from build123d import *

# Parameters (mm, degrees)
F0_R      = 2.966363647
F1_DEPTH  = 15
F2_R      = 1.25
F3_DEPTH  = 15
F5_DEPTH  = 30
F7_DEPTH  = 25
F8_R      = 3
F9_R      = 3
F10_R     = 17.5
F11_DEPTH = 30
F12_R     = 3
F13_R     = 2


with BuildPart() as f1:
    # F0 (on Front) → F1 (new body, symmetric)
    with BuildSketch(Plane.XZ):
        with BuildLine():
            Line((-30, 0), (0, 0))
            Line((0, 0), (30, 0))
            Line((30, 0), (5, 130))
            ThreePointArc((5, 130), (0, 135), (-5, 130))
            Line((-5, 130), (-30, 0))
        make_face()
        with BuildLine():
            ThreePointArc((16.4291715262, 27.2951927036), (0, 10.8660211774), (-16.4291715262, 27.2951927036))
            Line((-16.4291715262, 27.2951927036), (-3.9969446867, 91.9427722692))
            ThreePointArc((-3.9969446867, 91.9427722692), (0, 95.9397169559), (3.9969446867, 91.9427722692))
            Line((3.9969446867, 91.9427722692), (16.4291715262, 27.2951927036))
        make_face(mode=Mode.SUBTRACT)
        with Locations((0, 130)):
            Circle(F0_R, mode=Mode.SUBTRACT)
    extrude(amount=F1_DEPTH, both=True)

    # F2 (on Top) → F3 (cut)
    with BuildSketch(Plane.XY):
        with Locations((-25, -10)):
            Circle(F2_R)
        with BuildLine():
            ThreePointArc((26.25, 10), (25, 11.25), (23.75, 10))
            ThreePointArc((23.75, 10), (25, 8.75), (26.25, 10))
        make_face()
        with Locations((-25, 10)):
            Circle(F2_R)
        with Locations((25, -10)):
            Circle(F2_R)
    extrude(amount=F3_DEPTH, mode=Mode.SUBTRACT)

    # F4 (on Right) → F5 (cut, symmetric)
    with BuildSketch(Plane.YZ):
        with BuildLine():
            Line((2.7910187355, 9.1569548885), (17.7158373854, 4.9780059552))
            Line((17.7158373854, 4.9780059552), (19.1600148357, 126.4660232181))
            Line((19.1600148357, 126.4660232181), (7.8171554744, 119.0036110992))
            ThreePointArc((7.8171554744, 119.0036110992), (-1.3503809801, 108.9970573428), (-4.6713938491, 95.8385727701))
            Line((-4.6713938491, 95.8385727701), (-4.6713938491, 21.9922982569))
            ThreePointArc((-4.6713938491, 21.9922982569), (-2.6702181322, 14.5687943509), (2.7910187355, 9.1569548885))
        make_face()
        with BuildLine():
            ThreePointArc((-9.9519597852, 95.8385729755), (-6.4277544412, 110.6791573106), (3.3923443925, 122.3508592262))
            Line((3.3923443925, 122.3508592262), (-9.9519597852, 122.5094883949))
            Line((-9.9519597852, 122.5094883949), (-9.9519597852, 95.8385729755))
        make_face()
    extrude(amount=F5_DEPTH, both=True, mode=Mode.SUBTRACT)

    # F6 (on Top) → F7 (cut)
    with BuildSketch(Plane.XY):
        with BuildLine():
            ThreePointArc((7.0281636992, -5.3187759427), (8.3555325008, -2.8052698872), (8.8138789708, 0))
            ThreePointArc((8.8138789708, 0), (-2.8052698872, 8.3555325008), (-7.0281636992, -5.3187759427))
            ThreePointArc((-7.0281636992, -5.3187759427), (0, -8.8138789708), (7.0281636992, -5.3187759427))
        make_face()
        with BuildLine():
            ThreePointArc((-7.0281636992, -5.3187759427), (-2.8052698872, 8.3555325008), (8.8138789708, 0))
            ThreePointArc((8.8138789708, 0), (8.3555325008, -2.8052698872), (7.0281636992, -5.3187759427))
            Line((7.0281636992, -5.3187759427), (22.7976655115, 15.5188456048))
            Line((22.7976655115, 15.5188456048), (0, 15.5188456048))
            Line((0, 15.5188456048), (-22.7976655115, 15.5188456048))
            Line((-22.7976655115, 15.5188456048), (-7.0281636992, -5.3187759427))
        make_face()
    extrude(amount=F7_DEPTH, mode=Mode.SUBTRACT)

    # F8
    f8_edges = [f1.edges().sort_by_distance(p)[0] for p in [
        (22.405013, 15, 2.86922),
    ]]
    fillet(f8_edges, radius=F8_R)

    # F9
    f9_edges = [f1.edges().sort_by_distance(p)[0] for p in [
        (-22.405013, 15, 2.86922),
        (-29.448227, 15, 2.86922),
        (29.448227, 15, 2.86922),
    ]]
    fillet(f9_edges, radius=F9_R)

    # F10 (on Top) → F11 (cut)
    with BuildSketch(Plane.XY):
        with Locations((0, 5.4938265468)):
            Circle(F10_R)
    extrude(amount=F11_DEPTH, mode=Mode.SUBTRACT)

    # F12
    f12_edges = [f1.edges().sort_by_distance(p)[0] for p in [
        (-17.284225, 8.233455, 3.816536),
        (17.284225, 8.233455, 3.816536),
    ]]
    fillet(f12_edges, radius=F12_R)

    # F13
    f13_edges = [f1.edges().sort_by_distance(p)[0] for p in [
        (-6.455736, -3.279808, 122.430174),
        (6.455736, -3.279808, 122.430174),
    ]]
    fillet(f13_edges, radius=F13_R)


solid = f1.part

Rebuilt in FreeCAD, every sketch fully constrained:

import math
import FreeCAD as App
import Part
import Sketcher


def edges_at(feature, points):
    """Names of the edges that pass closest to the given points."""
    edges = feature.Shape.Edges
    near = lambda p: min(range(len(edges)), key=lambda i: edges[i].distToShape(Part.Vertex(*p))[0])
    return sorted({f"Edge{near(p) + 1}" for p in points})

doc = App.newDocument("Part")
body = doc.addObject("PartDesign::Body", "Body")

# Sketch on XZ plane
sketch1 = body.newObject("Sketcher::SketchObject", "Sketch")
sketch1.AttachmentSupport = (doc.getObject("XZ_Plane"), [""])
sketch1.MapMode = "FlatFace"
sketch1.addGeometry(Part.LineSegment(App.Vector(-30, 0, 0), App.Vector(30, 0, 0)), False)
sketch1.addGeometry(Part.LineSegment(App.Vector(30, 0, 0), App.Vector(5, 130, 0)), False)
sketch1.addGeometry(Part.ArcOfCircle(Part.Circle(App.Vector(0, 130, 0), App.Vector(0, 0, 1), 5), math.radians(0), math.radians(180)), False)
sketch1.addGeometry(Part.LineSegment(App.Vector(-5, 130, 0), App.Vector(-30, 0, 0)), False)
sketch1.addGeometry(Part.LineSegment(App.Vector(3.996945, 91.942772, 0), App.Vector(16.429172, 27.295193, 0)), False)
sketch1.addGeometry(Part.ArcOfCircle(Part.Circle(App.Vector(0, 27.295193, 0), App.Vector(0, 0, 1), 16.429172), math.radians(180), math.radians(360)), False)
sketch1.addGeometry(Part.LineSegment(App.Vector(-16.429172, 27.295193, 0), App.Vector(-3.996945, 91.942772, 0)), False)
sketch1.addGeometry(Part.ArcOfCircle(Part.Circle(App.Vector(0, 91.942772, 0), App.Vector(0, 0, 1), 3.996945), math.radians(0), math.radians(180)), False)
sketch1.addGeometry(Part.Circle(App.Vector(0, 130, 0), App.Vector(0, 0, 1), 2.966364), False)
sketch1.addConstraint(Sketcher.Constraint("Coincident", 0, 2, 1, 1))
sketch1.addConstraint(Sketcher.Constraint("Coincident", 1, 2, 2, 1))
sketch1.addConstraint(Sketcher.Constraint("Coincident", 2, 2, 3, 1))
sketch1.addConstraint(Sketcher.Constraint("Coincident", 3, 2, 0, 1))
sketch1.addConstraint(Sketcher.Constraint("Coincident", 4, 2, 5, 2))
sketch1.addConstraint(Sketcher.Constraint("Coincident", 5, 1, 6, 1))
sketch1.addConstraint(Sketcher.Constraint("Coincident", 6, 2, 7, 2))
sketch1.addConstraint(Sketcher.Constraint("Coincident", 7, 1, 4, 1))
sketch1.addConstraint(Sketcher.Constraint("Horizontal", 0))
sketch1.addConstraint(Sketcher.Constraint("Coincident", 8, 3, 2, 3))
sketch1.addConstraint(Sketcher.Constraint("Symmetric", 0, 2, 3, 2, -1, 1))
sketch1.addConstraint(Sketcher.Constraint("Symmetric", 1, 2, 2, 2, -2))
sketch1.addConstraint(Sketcher.Constraint("Symmetric", 4, 2, 5, 1, -2))
sketch1.addConstraint(Sketcher.Constraint("Symmetric", 6, 2, 7, 1, -2))
sketch1.addConstraint(Sketcher.Constraint("Parallel", 1, 4))
sketch1.addConstraint(Sketcher.Constraint("Horizontal", 8, 3, 1, 2))
sketch1.addConstraint(Sketcher.Constraint("Horizontal", 5, 3, 4, 2))
sketch1.addConstraint(Sketcher.Constraint("Horizontal", 7, 3, 6, 2))
sketch1.addConstraint(Sketcher.Constraint("Radius", 2, 5.0))
sketch1.addConstraint(Sketcher.Constraint("DistanceX", 0, 1, 0, 2, 60.0))
sketch1.addConstraint(Sketcher.Constraint("DistanceY", -1, 1, 2, 3, 130.0))
sketch1.addConstraint(Sketcher.Constraint("Radius", 5, 16.429172))
sketch1.addConstraint(Sketcher.Constraint("Diameter", 8, 5.932727))
sketch1.addConstraint(Sketcher.Constraint("Radius", 7, 3.996945))
sketch1.addConstraint(Sketcher.Constraint("DistanceY", -1, 1, 5, 3, 27.295193))
pad1 = body.newObject("PartDesign::Pad", "Pad")
pad1.Profile = sketch1
pad1.Length = 30
pad1.Midplane = True

# Sketch on XY plane
sketch2 = body.newObject("Sketcher::SketchObject", "Sketch001")
sketch2.AttachmentSupport = (doc.getObject("XY_Plane"), [""])
sketch2.MapMode = "FlatFace"
sketch2.addGeometry(Part.Circle(App.Vector(-25, -10, 0), App.Vector(0, 0, 1), 1.25), False)
sketch2.addGeometry(Part.Circle(App.Vector(25, 10, 0), App.Vector(0, 0, 1), 1.25), False)
sketch2.addGeometry(Part.Circle(App.Vector(-25, 10, 0), App.Vector(0, 0, 1), 1.25), False)
sketch2.addGeometry(Part.Circle(App.Vector(25, -10, 0), App.Vector(0, 0, 1), 1.25), False)
sketch2.addConstraint(Sketcher.Constraint("Equal", 0, 1))
sketch2.addConstraint(Sketcher.Constraint("Equal", 1, 2))
sketch2.addConstraint(Sketcher.Constraint("Equal", 2, 3))
sketch2.addConstraint(Sketcher.Constraint("Symmetric", 0, 3, 1, 3, -1, 1))
sketch2.addConstraint(Sketcher.Constraint("Symmetric", 2, 3, 3, 3, -1, 1))
sketch2.addConstraint(Sketcher.Constraint("Symmetric", 1, 3, 2, 3, -2))
sketch2.addConstraint(Sketcher.Constraint("Diameter", 0, 2.5))
sketch2.addConstraint(Sketcher.Constraint("DistanceX", 0, 3, -1, 1, 25.0))
sketch2.addConstraint(Sketcher.Constraint("DistanceY", 0, 3, -1, 1, 10.0))
pocket1 = body.newObject("PartDesign::Pocket", "Pocket")
pocket1.Profile = sketch2
pocket1.Length = 15
pocket1.Reversed = True

# Sketch on YZ plane
sketch3 = body.newObject("Sketcher::SketchObject", "Sketch002")
sketch3.AttachmentSupport = (doc.getObject("YZ_Plane"), [""])
sketch3.MapMode = "FlatFace"
sketch3.addGeometry(Part.LineSegment(App.Vector(2.791019, 9.156955, 0), App.Vector(17.715837, 4.978006, 0)), False)
sketch3.addGeometry(Part.LineSegment(App.Vector(17.715837, 4.978006, 0), App.Vector(19.160015, 126.466023, 0)), False)
sketch3.addGeometry(Part.LineSegment(App.Vector(19.160015, 126.466023, 0), App.Vector(7.817155, 119.003611, 0)), False)
sketch3.addGeometry(Part.ArcOfCircle(Part.Circle(App.Vector(23.057322, 95.838573, 0), App.Vector(0, 0, 1), 27.728716), math.radians(123.340724), math.radians(180)), False)
sketch3.addGeometry(Part.LineSegment(App.Vector(-4.671394, 95.838573, 0), App.Vector(-4.671394, 21.992298, 0)), False)
sketch3.addGeometry(Part.ArcOfCircle(Part.Circle(App.Vector(10.098202, 21.992298, 0), App.Vector(0, 0, 1), 14.769596), math.radians(180), math.radians(240.347064)), False)
sketch3.addGeometry(Part.ArcOfCircle(Part.Circle(App.Vector(23.057322, 95.838573, 0), App.Vector(0, 0, 1), 33.009282), math.radians(126.565463), math.radians(180)), False)
sketch3.addGeometry(Part.LineSegment(App.Vector(3.392344, 122.350859, 0), App.Vector(-9.95196, 122.509488, 0)), False)
sketch3.addGeometry(Part.LineSegment(App.Vector(-9.95196, 122.509488, 0), App.Vector(-9.95196, 95.838573, 0)), False)
sketch3.addConstraint(Sketcher.Constraint("Coincident", 0, 2, 1, 1))
sketch3.addConstraint(Sketcher.Constraint("Coincident", 1, 2, 2, 1))
sketch3.addConstraint(Sketcher.Constraint("Tangent", 2, 2, 3, 1))
sketch3.addConstraint(Sketcher.Constraint("Tangent", 3, 2, 4, 1))
sketch3.addConstraint(Sketcher.Constraint("Tangent", 4, 2, 5, 1))
sketch3.addConstraint(Sketcher.Constraint("Coincident", 5, 2, 0, 1))
sketch3.addConstraint(Sketcher.Constraint("Coincident", 6, 1, 7, 1))
sketch3.addConstraint(Sketcher.Constraint("Coincident", 7, 2, 8, 1))
sketch3.addConstraint(Sketcher.Constraint("Tangent", 8, 2, 6, 2))
sketch3.addConstraint(Sketcher.Constraint("Vertical", 4))
sketch3.addConstraint(Sketcher.Constraint("Vertical", 8))
sketch3.addConstraint(Sketcher.Constraint("Coincident", 6, 3, 3, 3))
sketch3.addConstraint(Sketcher.Constraint("Perpendicular", 1, 7))
sketch3.addConstraint(Sketcher.Constraint("Radius", 6, 33.009282))
sketch3.addConstraint(Sketcher.Constraint("Radius", 3, 27.728716))
sketch3.addConstraint(Sketcher.Constraint("Radius", 5, 14.769596))
sketch3.addConstraint(Sketcher.Constraint("Distance", 1, 121.496601))
sketch3.addConstraint(Sketcher.Constraint("DistanceY", -1, 1, 5, 3, 21.992298))
sketch3.addConstraint(Sketcher.Constraint("DistanceY", 4, 2, 4, 1, 73.846275))
sketch3.addConstraint(Sketcher.Constraint("DistanceY", 8, 2, 8, 1, 26.670915))
sketch3.addConstraint(Sketcher.Constraint("DistanceX", -1, 1, 3, 3, 23.057322))
sketch3.addConstraint(Sketcher.Constraint("DistanceY", -1, 1, 2, 2, 119.003611))
sketch3.addConstraint(Sketcher.Constraint("DistanceX", -1, 1, 5, 2, 2.791019))
sketch3.addConstraint(Sketcher.Constraint("DistanceY", -1, 1, 6, 1, 122.350859))
sketch3.addConstraint(Sketcher.Constraint("DistanceY", 3, 3, 1, 2, 30.62745))
pocket2 = body.newObject("PartDesign::Pocket", "Pocket001")
pocket2.Profile = sketch3
pocket2.Length = 60
pocket2.Midplane = True

# Sketch on XY plane
sketch4 = body.newObject("Sketcher::SketchObject", "Sketch003")
sketch4.AttachmentSupport = (doc.getObject("XY_Plane"), [""])
sketch4.MapMode = "FlatFace"
sketch4.addGeometry(Part.ArcOfCircle(Part.Circle(App.Vector(0, 0, 0), App.Vector(0, 0, 1), 8.813879), math.radians(-142.882281), math.radians(-37.117719)), False)
sketch4.addGeometry(Part.LineSegment(App.Vector(7.028164, -5.318776, 0), App.Vector(22.797666, 15.518846, 0)), False)
sketch4.addGeometry(Part.LineSegment(App.Vector(22.797666, 15.518846, 0), App.Vector(-22.797666, 15.518846, 0)), False)
sketch4.addGeometry(Part.LineSegment(App.Vector(-22.797666, 15.518846, 0), App.Vector(-7.028164, -5.318776, 0)), False)
sketch4.addConstraint(Sketcher.Constraint("Tangent", 0, 2, 1, 1))
sketch4.addConstraint(Sketcher.Constraint("Coincident", 1, 2, 2, 1))
sketch4.addConstraint(Sketcher.Constraint("Coincident", 2, 2, 3, 1))
sketch4.addConstraint(Sketcher.Constraint("Tangent", 3, 2, 0, 1))
sketch4.addConstraint(Sketcher.Constraint("Horizontal", 2))
sketch4.addConstraint(Sketcher.Constraint("Coincident", 0, 3, -1, 1))
sketch4.addConstraint(Sketcher.Constraint("Horizontal", 0, 2, 3, 2))
sketch4.addConstraint(Sketcher.Constraint("Radius", 0, 8.813879))
sketch4.addConstraint(Sketcher.Constraint("DistanceX", 2, 2, 2, 1, 45.595331))
sketch4.addConstraint(Sketcher.Constraint("DistanceX", 0, 2, 1, 2, 15.769502))
pocket3 = body.newObject("PartDesign::Pocket", "Pocket002")
pocket3.Profile = sketch4
pocket3.Length = 25
pocket3.Reversed = True
doc.recompute()

fillet = body.newObject("PartDesign::Fillet", "Fillet")
fillet.Base = (pocket3, edges_at(pocket3, [(22.405, 15, 2.869)]))
fillet.Radius = 3
doc.recompute()

fillet2 = body.newObject("PartDesign::Fillet", "Fillet001")
fillet2.Base = (fillet, edges_at(fillet, [(-22.405, 15, 2.869), (-29.448, 15, 2.869), (29.448, 15, 2.869)]))
fillet2.Radius = 3

# Sketch on XY plane
sketch5 = body.newObject("Sketcher::SketchObject", "Sketch004")
sketch5.AttachmentSupport = (doc.getObject("XY_Plane"), [""])
sketch5.MapMode = "FlatFace"
sketch5.addGeometry(Part.Circle(App.Vector(0, 5.493827, 0), App.Vector(0, 0, 1), 17.5), False)
sketch5.addConstraint(Sketcher.Constraint("PointOnObject", 0, 3, -2))
sketch5.addConstraint(Sketcher.Constraint("Diameter", 0, 35.0))
sketch5.addConstraint(Sketcher.Constraint("DistanceY", -1, 1, 0, 3, 5.493827))
pocket4 = body.newObject("PartDesign::Pocket", "Pocket003")
pocket4.Profile = sketch5
pocket4.Length = 30
pocket4.Reversed = True
doc.recompute()

fillet3 = body.newObject("PartDesign::Fillet", "Fillet002")
fillet3.Base = (pocket4, edges_at(pocket4, [(-17.284, 8.233, 3.817), (17.284, 8.233, 3.817)]))
fillet3.Radius = 3
doc.recompute()

fillet4 = body.newObject("PartDesign::Fillet", "Fillet003")
fillet4.Base = (fillet3, edges_at(fillet3, [(-6.456, -3.28, 122.43), (6.456, -3.28, 122.43)]))
fillet4.Radius = 2

doc.recompute()
